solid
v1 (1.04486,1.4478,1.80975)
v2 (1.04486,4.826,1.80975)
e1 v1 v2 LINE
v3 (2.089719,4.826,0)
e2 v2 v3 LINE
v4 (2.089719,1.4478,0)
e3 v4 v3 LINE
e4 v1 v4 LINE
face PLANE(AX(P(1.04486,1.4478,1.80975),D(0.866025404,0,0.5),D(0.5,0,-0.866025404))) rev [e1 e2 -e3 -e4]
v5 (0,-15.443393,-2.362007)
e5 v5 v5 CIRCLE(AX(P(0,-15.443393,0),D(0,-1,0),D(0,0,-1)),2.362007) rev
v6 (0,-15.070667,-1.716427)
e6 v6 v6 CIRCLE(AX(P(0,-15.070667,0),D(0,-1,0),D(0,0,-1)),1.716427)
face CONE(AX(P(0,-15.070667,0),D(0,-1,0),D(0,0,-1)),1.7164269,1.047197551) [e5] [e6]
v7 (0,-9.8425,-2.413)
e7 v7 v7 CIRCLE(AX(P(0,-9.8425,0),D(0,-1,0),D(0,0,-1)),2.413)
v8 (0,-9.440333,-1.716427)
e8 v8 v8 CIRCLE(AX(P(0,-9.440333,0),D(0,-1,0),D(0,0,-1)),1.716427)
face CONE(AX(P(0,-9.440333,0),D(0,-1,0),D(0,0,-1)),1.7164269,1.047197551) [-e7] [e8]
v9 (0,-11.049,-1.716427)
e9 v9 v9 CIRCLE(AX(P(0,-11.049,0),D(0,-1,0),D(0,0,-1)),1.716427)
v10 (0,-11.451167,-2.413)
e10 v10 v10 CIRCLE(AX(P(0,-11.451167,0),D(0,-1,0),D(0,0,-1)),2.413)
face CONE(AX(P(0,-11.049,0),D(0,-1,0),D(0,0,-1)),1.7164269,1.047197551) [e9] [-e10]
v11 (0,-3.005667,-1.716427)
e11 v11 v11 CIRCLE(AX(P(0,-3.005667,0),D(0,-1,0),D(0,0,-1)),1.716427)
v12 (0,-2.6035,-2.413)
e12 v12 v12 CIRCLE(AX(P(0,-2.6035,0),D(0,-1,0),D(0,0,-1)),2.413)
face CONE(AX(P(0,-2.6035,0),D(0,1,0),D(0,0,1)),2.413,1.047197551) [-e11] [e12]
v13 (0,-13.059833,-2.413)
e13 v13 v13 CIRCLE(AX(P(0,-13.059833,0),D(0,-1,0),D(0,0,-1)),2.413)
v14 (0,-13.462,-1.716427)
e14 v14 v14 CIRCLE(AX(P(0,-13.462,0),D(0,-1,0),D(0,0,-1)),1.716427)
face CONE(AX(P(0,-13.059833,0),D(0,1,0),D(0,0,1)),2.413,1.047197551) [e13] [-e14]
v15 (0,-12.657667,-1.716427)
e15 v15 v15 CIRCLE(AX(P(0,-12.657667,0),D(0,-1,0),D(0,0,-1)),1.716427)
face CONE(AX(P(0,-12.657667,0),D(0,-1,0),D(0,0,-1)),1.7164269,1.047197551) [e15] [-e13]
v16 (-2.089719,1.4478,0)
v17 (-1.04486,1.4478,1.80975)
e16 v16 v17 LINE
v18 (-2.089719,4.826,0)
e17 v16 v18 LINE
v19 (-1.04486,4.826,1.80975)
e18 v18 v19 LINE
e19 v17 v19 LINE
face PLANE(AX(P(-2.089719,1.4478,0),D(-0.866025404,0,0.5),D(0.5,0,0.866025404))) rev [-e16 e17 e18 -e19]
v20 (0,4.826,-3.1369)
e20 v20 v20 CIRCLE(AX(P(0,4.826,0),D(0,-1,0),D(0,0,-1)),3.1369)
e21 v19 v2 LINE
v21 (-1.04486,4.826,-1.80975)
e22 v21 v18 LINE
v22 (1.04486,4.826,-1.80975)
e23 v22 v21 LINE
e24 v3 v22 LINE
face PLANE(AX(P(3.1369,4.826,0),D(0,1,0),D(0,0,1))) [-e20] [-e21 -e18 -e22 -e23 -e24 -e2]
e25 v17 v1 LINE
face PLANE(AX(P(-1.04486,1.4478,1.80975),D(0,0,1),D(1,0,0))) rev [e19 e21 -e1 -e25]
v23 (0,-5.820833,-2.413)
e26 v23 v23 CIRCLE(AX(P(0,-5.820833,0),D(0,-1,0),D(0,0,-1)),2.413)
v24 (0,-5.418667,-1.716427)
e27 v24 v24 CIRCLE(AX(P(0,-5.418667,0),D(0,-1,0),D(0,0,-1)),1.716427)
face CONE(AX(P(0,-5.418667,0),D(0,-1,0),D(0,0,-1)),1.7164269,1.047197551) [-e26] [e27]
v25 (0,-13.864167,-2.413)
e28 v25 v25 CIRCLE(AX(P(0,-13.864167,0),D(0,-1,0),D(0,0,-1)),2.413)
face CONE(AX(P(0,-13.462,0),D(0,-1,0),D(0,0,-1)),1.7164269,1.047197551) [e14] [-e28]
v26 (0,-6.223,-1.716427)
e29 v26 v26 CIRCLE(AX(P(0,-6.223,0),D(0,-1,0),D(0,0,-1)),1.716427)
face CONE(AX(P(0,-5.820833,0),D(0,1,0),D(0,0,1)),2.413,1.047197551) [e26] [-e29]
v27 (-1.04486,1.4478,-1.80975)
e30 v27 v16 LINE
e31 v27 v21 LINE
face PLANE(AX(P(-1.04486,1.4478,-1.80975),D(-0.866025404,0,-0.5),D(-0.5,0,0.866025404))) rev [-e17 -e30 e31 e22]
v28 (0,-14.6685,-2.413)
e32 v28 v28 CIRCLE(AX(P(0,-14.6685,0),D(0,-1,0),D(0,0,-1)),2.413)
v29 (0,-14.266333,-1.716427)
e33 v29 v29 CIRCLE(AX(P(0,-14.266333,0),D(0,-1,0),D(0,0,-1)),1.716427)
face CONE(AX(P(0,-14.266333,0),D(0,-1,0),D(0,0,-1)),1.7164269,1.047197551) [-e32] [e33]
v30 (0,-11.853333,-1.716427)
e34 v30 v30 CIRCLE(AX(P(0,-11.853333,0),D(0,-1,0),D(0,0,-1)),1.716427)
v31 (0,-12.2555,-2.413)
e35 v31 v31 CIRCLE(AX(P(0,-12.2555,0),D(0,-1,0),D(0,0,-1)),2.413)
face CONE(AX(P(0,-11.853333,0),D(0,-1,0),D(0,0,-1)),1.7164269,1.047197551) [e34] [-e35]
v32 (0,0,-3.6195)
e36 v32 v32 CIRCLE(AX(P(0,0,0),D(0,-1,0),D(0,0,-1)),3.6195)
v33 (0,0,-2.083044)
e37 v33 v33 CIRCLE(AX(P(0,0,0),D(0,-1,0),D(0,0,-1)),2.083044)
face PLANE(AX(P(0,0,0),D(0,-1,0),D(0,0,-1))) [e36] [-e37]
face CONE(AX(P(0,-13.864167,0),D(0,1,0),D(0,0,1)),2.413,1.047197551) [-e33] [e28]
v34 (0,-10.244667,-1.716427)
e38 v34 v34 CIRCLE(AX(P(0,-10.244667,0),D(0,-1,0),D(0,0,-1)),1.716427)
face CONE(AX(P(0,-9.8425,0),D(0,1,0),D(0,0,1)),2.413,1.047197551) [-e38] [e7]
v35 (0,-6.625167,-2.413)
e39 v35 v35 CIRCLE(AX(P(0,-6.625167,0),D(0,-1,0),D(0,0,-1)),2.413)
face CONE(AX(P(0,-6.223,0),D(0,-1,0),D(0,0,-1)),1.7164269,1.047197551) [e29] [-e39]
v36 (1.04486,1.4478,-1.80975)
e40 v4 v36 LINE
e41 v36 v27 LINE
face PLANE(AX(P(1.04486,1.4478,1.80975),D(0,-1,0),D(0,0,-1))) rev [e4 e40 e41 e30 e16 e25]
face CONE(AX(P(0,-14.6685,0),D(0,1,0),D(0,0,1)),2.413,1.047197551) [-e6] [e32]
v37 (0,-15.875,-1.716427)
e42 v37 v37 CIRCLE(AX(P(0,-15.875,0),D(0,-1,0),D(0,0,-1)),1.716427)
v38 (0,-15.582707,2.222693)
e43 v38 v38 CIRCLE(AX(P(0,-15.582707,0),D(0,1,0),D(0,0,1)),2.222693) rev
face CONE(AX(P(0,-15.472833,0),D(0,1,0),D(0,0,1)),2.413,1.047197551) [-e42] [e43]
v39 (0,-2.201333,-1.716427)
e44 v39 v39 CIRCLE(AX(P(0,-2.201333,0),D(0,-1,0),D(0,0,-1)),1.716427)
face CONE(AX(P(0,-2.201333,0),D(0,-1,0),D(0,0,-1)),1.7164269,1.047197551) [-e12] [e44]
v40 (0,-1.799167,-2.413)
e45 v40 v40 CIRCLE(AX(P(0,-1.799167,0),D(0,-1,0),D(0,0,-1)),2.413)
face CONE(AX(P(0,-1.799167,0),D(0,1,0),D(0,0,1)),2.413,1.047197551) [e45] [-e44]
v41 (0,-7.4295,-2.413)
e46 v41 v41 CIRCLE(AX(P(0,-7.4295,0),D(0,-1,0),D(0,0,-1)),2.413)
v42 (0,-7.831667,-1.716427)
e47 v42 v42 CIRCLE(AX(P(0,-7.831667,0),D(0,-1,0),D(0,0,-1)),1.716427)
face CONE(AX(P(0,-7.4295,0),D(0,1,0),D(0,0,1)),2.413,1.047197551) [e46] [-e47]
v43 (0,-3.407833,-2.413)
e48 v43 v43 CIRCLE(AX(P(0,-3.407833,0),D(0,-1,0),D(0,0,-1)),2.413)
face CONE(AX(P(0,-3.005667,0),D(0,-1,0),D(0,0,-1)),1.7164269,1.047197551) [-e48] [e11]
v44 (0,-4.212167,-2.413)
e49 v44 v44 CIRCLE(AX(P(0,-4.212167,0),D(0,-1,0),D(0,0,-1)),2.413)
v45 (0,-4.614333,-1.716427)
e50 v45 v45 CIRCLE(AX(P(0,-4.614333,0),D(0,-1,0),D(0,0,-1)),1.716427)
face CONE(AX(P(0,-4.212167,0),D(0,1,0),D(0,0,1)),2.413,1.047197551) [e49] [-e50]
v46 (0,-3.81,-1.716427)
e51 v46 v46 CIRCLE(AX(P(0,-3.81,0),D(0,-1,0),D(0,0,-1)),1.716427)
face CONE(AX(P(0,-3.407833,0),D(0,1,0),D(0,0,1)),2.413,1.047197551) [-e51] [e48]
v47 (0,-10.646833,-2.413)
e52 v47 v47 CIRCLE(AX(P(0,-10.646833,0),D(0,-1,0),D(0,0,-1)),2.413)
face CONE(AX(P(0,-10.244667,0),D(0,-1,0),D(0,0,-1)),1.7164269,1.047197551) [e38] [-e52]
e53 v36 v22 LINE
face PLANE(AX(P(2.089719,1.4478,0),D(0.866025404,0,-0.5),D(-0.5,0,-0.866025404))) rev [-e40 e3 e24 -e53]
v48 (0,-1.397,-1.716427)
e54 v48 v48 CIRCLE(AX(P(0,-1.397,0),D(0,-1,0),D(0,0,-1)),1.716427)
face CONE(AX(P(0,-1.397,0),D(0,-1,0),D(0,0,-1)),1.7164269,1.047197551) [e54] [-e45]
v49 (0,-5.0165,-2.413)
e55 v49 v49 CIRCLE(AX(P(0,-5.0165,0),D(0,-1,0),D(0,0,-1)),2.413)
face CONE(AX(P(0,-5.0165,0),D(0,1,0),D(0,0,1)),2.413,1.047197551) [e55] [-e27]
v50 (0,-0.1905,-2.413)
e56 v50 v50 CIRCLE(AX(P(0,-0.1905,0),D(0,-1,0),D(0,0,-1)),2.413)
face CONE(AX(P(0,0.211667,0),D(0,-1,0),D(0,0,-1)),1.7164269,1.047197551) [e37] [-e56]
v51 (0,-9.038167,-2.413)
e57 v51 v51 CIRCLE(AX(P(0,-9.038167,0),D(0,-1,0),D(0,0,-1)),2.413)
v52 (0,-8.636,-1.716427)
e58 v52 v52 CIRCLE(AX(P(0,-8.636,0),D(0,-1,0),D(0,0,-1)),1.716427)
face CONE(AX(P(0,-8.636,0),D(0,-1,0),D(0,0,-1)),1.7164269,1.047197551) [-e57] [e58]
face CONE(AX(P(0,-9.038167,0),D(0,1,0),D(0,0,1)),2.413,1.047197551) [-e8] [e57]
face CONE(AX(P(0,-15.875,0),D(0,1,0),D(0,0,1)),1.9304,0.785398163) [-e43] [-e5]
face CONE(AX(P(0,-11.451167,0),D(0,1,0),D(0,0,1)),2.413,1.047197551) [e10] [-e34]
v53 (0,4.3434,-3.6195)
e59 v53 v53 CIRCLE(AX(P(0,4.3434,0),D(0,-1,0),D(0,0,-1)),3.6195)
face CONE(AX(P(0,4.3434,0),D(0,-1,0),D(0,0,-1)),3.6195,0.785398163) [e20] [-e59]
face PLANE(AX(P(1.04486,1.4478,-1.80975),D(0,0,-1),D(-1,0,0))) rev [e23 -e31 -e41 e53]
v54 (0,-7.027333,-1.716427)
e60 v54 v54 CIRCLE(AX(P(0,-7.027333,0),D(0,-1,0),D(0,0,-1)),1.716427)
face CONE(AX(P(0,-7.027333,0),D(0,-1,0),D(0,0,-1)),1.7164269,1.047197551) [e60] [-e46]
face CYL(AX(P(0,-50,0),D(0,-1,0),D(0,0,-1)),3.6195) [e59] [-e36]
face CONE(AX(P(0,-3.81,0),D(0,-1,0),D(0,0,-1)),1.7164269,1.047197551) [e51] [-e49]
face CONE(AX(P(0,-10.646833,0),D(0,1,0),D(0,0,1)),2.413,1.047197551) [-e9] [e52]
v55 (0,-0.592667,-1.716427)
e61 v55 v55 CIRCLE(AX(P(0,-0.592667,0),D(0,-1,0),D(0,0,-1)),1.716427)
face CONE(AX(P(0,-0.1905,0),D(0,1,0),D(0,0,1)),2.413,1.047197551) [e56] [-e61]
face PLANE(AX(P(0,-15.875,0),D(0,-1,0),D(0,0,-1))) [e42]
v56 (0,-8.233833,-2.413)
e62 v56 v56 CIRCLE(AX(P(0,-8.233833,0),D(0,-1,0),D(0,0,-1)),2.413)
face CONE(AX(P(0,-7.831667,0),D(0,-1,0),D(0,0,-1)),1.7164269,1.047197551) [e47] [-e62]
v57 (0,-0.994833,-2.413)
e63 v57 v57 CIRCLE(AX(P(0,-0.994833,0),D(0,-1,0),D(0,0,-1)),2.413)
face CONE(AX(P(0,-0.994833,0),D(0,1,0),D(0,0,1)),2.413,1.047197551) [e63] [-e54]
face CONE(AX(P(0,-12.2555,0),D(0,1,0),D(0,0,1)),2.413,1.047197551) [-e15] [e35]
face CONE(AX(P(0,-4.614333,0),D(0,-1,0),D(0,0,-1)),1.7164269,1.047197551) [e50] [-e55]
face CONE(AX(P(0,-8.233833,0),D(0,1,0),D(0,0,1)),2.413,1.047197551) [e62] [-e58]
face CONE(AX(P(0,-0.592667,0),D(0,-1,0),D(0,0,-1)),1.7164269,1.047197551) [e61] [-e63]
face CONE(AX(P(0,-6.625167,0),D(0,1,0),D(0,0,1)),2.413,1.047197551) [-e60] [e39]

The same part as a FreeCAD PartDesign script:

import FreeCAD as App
import Part
import Sketcher
from FreeCAD import Vector
Q = App.Units.Quantity

doc = App.newDocument("Part")
params = doc.addObject("Spreadsheet::Sheet", "Params")
for row, (alias, value) in enumerate([
    ("sketch1_width", "0.076 in"),
    ("sketch1_width2", "0.095 in"),
    ("sketch1_height", "0.682 in"),
    ("revolution_angle", "360 deg"),
    ("sketch2_height", "0.855 in"),
    ("groove_angle", "360 deg"),
    ("sketch3_height", "0.19 in"),
    ("sketch3_height2", "0.171 in"),
    ("revolution2_angle", "360 deg"),
    ("pocket1_length", "0.133 in"),
], start=1):
    params.set(f"A{row}", alias)
    params.set(f"B{row}", "=" + value)
    params.setAlias(f"B{row}", alias)

body = doc.addObject("PartDesign::Body", "Body")

# Sketch on XY plane
sketch1 = doc.addObject("Sketcher::SketchObject", "Sketch")
body.addObject(sketch1)
sketch1.AttachmentSupport = (doc.XY_Plane, [""])
sketch1.MapMode = "FlatFace"
sketch1.addGeometry(Part.LineSegment(Vector(0, 1.4, 0), Vector(0, -15.9, 0)), False)
sketch1.addGeometry(Part.LineSegment(Vector(0, -15.9, 0), Vector(1.9, -15.9, 0)), False)
sketch1.addGeometry(Part.LineSegment(Vector(1.9, -15.9, 0), Vector(2.4, -15.4, 0)), False)
sketch1.addGeometry(Part.LineSegment(Vector(2.4, -15.4, 0), Vector(2.4, 1.4, 0)), False)
sketch1.addGeometry(Part.LineSegment(Vector(2.4, 1.4, 0), Vector(0, 1.4, 0)), False)
sketch1.addConstraint(Sketcher.Constraint("Coincident", 0, 2, 1, 1))
sketch1.addConstraint(Sketcher.Constraint("Coincident", 1, 2, 2, 1))
sketch1.addConstraint(Sketcher.Constraint("Coincident", 2, 2, 3, 1))
sketch1.addConstraint(Sketcher.Constraint("Coincident", 3, 2, 4, 1))
sketch1.addConstraint(Sketcher.Constraint("Coincident", 4, 2, 0, 1))
sketch1.addConstraint(Sketcher.Constraint("Vertical", 0))
sketch1.addConstraint(Sketcher.Constraint("Horizontal", 1))
sketch1.addConstraint(Sketcher.Constraint("Vertical", 3))
sketch1.addConstraint(Sketcher.Constraint("Horizontal", 4))
sketch1.addConstraint(Sketcher.Constraint("PointOnObject", 0, 2, -2))
sketch1.addConstraint(Sketcher.Constraint("Angle", 2, Q("45 deg")))
sketch1.addConstraint(Sketcher.Constraint("DistanceX", 1, 1, 1, 2, Q("0.076 in")))
sketch1.addConstraint(Sketcher.Constraint("DistanceX", 4, 2, 4, 1, Q("0.095 in")))
sketch1.addConstraint(Sketcher.Constraint("DistanceY", 0, 2, 0, 1, Q("0.682 in")))
sketch1.addConstraint(Sketcher.Constraint("DistanceY", 0, 2, -1, 1, Q("0.625 in")))
sketch1.setExpression("Constraints[11]", "Params.sketch1_width")
sketch1.setExpression("Constraints[12]", "Params.sketch1_width2")
sketch1.setExpression("Constraints[13]", "Params.sketch1_height")
revolution = doc.addObject("PartDesign::Revolution", "Revolution")
body.addObject(revolution)
revolution.Profile = sketch1
revolution.ReferenceAxis = (sketch1, ["V_Axis"])
revolution.setExpression("Angle", "Params.revolution_angle")

# Sketch on XY plane
sketch2 = doc.addObject("Sketcher::SketchObject", "Sketch001")
body.addObject(sketch2)
sketch2.AttachmentSupport = (doc.XY_Plane, [""])
sketch2.MapMode = "FlatFace"
sketch2.addGeometry(Part.LineSegment(Vector(2.4, 3.8, 0), Vector(1.7, 3.4, 0)), False)
sketch2.addGeometry(Part.LineSegment(Vector(1.7, 3.4, 0), Vector(2.4, 3, 0)), False)
sketch2.addGeometry(Part.LineSegment(Vector(2.4, 3, 0), Vector(1.7, 2.6, 0)), False)
sketch2.addGeometry(Part.LineSegment(Vector(1.7, 2.6, 0), Vector(2.4, 2.2, 0)), False)
sketch2.addGeometry(Part.LineSegment(Vector(2.4, 2.2, 0), Vector(1.7, 1.8, 0)), False)
sketch2.addGeometry(Part.LineSegment(Vector(1.7, 1.8, 0), Vector(2.4, 1.4, 0)), False)
sketch2.addGeometry(Part.LineSegment(Vector(2.4, 1.4, 0), Vector(1.7, 1, 0)), False)
sketch2.addGeometry(Part.LineSegment(Vector(1.7, 1, 0), Vector(2.4, 0.6, 0)), False)
sketch2.addGeometry(Part.LineSegment(Vector(2.4, 0.6, 0), Vector(1.7, 0.2, 0)), False)
sketch2.addGeometry(Part.LineSegment(Vector(1.7, 0.2, 0), Vector(2.4, -0.2, 0)), False)
sketch2.addGeometry(Part.LineSegment(Vector(2.4, -0.2, 0), Vector(1.7, -0.6, 0)), False)
sketch2.addGeometry(Part.LineSegment(Vector(1.7, -0.6, 0), Vector(2.4, -1, 0)), False)
sketch2.addGeometry(Part.LineSegment(Vector(2.4, -1, 0), Vector(1.7, -1.4, 0)), False)
sketch2.addGeometry(Part.LineSegment(Vector(1.7, -1.4, 0), Vector(2.4, -1.8, 0)), False)
sketch2.addGeometry(Part.LineSegment(Vector(2.4, -1.8, 0), Vector(1.7, -2.2, 0)), False)
sketch2.addGeometry(Part.LineSegment(Vector(1.7, -2.2, 0), Vector(2.4, -2.6, 0)), False)
sketch2.addGeometry(Part.LineSegment(Vector(2.4, -2.6, 0), Vector(1.7, -3, 0)), False)
sketch2.addGeometry(Part.LineSegment(Vector(1.7, -3, 0), Vector(2.4, -3.4, 0)), False)
sketch2.addGeometry(Part.LineSegment(Vector(2.4, -3.4, 0), Vector(1.7, -3.8, 0)), False)
sketch2.addGeometry(Part.LineSegment(Vector(1.7, -3.8, 0), Vector(2.4, -4.2, 0)), False)
sketch2.addGeometry(Part.LineSegment(Vector(2.4, -4.2, 0), Vector(1.7, -4.6, 0)), False)
sketch2.addGeometry(Part.LineSegment(Vector(1.7, -4.6, 0), Vector(2.4, -5, 0)), False)
sketch2.addGeometry(Part.LineSegment(Vector(2.4, -5, 0), Vector(1.7, -5.4, 0)), False)
sketch2.addGeometry(Part.LineSegment(Vector(1.7, -5.4, 0), Vector(2.4, -5.8, 0)), False)
sketch2.addGeometry(Part.LineSegment(Vector(2.4, -5.8, 0), Vector(1.7, -6.2, 0)), False)
sketch2.addGeometry(Part.LineSegment(Vector(1.7, -6.2, 0), Vector(2.4, -6.6, 0)), False)
sketch2.addGeometry(Part.LineSegment(Vector(2.4, -6.6, 0), Vector(1.7, -7, 0)), False)
sketch2.addGeometry(Part.LineSegment(Vector(1.7, -7, 0), Vector(2.4, -7.4, 0)), False)
sketch2.addGeometry(Part.LineSegment(Vector(2.4, -7.4, 0), Vector(1.7, -7.8, 0)), False)
sketch2.addGeometry(Part.LineSegment(Vector(1.7, -7.8, 0), Vector(2.4, -8.2, 0)), False)
sketch2.addGeometry(Part.LineSegment(Vector(2.4, -8.2, 0), Vector(1.7, -8.6, 0)), False)
sketch2.addGeometry(Part.LineSegment(Vector(1.7, -8.6, 0), Vector(2.4, -9, 0)), False)
sketch2.addGeometry(Part.LineSegment(Vector(2.4, -9, 0), Vector(1.7, -9.4, 0)), False)
sketch2.addGeometry(Part.LineSegment(Vector(1.7, -9.4, 0), Vector(2.4, -9.8, 0)), False)
sketch2.addGeometry(Part.LineSegment(Vector(2.4, -9.8, 0), Vector(1.7, -10.2, 0)), False)
sketch2.addGeometry(Part.LineSegment(Vector(1.7, -10.2, 0), Vector(2.4, -10.6, 0)), False)
sketch2.addGeometry(Part.LineSegment(Vector(2.4, -10.6, 0), Vector(1.7, -11, 0)), False)
sketch2.addGeometry(Part.LineSegment(Vector(1.7, -11, 0), Vector(2.4, -11.5, 0)), False)
sketch2.addGeometry(Part.LineSegment(Vector(2.4, -11.5, 0), Vector(1.7, -11.9, 0)), False)
sketch2.addGeometry(Part.LineSegment(Vector(1.7, -11.9, 0), Vector(2.4, -12.3, 0)), False)
sketch2.addGeometry(Part.LineSegment(Vector(2.4, -12.3, 0), Vector(1.7, -12.7, 0)), False)
sketch2.addGeometry(Part.LineSegment(Vector(1.7, -12.7, 0), Vector(2.4, -13.1, 0)), False)
sketch2.addGeometry(Part.LineSegment(Vector(2.4, -13.1, 0), Vector(1.7, -13.5, 0)), False)
sketch2.addGeometry(Part.LineSegment(Vector(1.7, -13.5, 0), Vector(2.4, -13.9, 0)), False)
sketch2.addGeometry(Part.LineSegment(Vector(2.4, -13.9, 0), Vector(1.7, -14.3, 0)), False)
sketch2.addGeometry(Part.LineSegment(Vector(1.7, -14.3, 0), Vector(2.4, -14.7, 0)), False)
sketch2.addGeometry(Part.LineSegment(Vector(2.4, -14.7, 0), Vector(1.7, -15.1, 0)), False)
sketch2.addGeometry(Part.LineSegment(Vector(1.7, -15.1, 0), Vector(2.4, -15.5, 0)), False)
sketch2.addGeometry(Part.LineSegment(Vector(2.4, -15.5, 0), Vector(1.7, -15.9, 0)), False)
sketch2.addGeometry(Part.LineSegment(Vector(1.7, -15.9, 0), Vector(2.4, -16.3, 0)), False)
sketch2.addGeometry(Part.LineSegment(Vector(2.4, -16.3, 0), Vector(1.7, -16.7, 0)), False)
sketch2.addGeometry(Part.LineSegment(Vector(1.7, -16.7, 0), Vector(2.4, -17.1, 0)), False)
sketch2.addGeometry(Part.LineSegment(Vector(2.4, -17.1, 0), Vector(1.7, -17.5, 0)), False)
sketch2.addGeometry(Part.LineSegment(Vector(1.7, -17.5, 0), Vector(2.4, -17.9, 0)), False)
sketch2.addGeometry(Part.LineSegment(Vector(2.4, -17.9, 0), Vector(3.2, -17.9, 0)), False)
sketch2.addGeometry(Part.LineSegment(Vector(3.2, -17.9, 0), Vector(3.2, 3.8, 0)), False)
sketch2.addGeometry(Part.LineSegment(Vector(3.2, 3.8, 0), Vector(2.4, 3.8, 0)), False)
sketch2.addConstraint(Sketcher.Constraint("Coincident", 0, 2, 1, 1))
sketch2.addConstraint(Sketcher.Constraint("Coincident", 1, 2, 2, 1))
sketch2.addConstraint(Sketcher.Constraint("Coincident", 2, 2, 3, 1))
sketch2.addConstraint(Sketcher.Constraint("Coincident", 3, 2, 4, 1))
sketch2.addConstraint(Sketcher.Constraint("Coincident", 4, 2, 5, 1))
sketch2.addConstraint(Sketcher.Constraint("Coincident", 5, 2, 6, 1))
sketch2.addConstraint(Sketcher.Constraint("Coincident", 6, 2, 7, 1))
sketch2.addConstraint(Sketcher.Constraint("Coincident", 7, 2, 8, 1))
sketch2.addConstraint(Sketcher.Constraint("Coincident", 8, 2, 9, 1))
sketch2.addConstraint(Sketcher.Constraint("Coincident", 9, 2, 10, 1))
sketch2.addConstraint(Sketcher.Constraint("Coincident", 10, 2, 11, 1))
sketch2.addConstraint(Sketcher.Constraint("Coincident", 11, 2, 12, 1))
sketch2.addConstraint(Sketcher.Constraint("Coincident", 12, 2, 13, 1))
sketch2.addConstraint(Sketcher.Constraint("Coincident", 13, 2, 14, 1))
sketch2.addConstraint(Sketcher.Constraint("Coincident", 14, 2, 15, 1))
sketch2.addConstraint(Sketcher.Constraint("Coincident", 15, 2, 16, 1))
sketch2.addConstraint(Sketcher.Constraint("Coincident", 16, 2, 17, 1))
sketch2.addConstraint(Sketcher.Constraint("Coincident", 17, 2, 18, 1))
sketch2.addConstraint(Sketcher.Constraint("Coincident", 18, 2, 19, 1))
sketch2.addConstraint(Sketcher.Constraint("Coincident", 19, 2, 20, 1))
sketch2.addConstraint(Sketcher.Constraint("Coincident", 20, 2, 21, 1))
sketch2.addConstraint(Sketcher.Constraint("Coincident", 21, 2, 22, 1))
sketch2.addConstraint(Sketcher.Constraint("Coincident", 22, 2, 23, 1))
sketch2.addConstraint(Sketcher.Constraint("Coincident", 23, 2, 24, 1))
sketch2.addConstraint(Sketcher.Constraint("Coincident", 24, 2, 25, 1))
sketch2.addConstraint(Sketcher.Constraint("Coincident", 25, 2, 26, 1))
sketch2.addConstraint(Sketcher.Constraint("Coincident", 26, 2, 27, 1))
sketch2.addConstraint(Sketcher.Constraint("Coincident", 27, 2, 28, 1))
sketch2.addConstraint(Sketcher.Constraint("Coincident", 28, 2, 29, 1))
sketch2.addConstraint(Sketcher.Constraint("Coincident", 29, 2, 30, 1))
sketch2.addConstraint(Sketcher.Constraint("Coincident", 30, 2, 31, 1))
sketch2.addConstraint(Sketcher.Constraint("Coincident", 31, 2, 32, 1))
sketch2.addConstraint(Sketcher.Constraint("Coincident", 32, 2, 33, 1))
sketch2.addConstraint(Sketcher.Constraint("Coincident", 33, 2, 34, 1))
sketch2.addConstraint(Sketcher.Constraint("Coincident", 34, 2, 35, 1))
sketch2.addConstraint(Sketcher.Constraint("Coincident", 35, 2, 36, 1))
sketch2.addConstraint(Sketcher.Constraint("Coincident", 36, 2, 37, 1))
sketch2.addConstraint(Sketcher.Constraint("Coincident", 37, 2, 38, 1))
sketch2.addConstraint(Sketcher.Constraint("Coincident", 38, 2, 39, 1))
sketch2.addConstraint(Sketcher.Constraint("Coincident", 39, 2, 40, 1))
sketch2.addConstraint(Sketcher.Constraint("Coincident", 40, 2, 41, 1))
sketch2.addConstraint(Sketcher.Constraint("Coincident", 41, 2, 42, 1))
sketch2.addConstraint(Sketcher.Constraint("Coincident", 42, 2, 43, 1))
sketch2.addConstraint(Sketcher.Constraint("Coincident", 43, 2, 44, 1))
sketch2.addConstraint(Sketcher.Constraint("Coincident", 44, 2, 45, 1))
sketch2.addConstraint(Sketcher.Constraint("Coincident", 45, 2, 46, 1))
sketch2.addConstraint(Sketcher.Constraint("Coincident", 46, 2, 47, 1))
sketch2.addConstraint(Sketcher.Constraint("Coincident", 47, 2, 48, 1))
sketch2.addConstraint(Sketcher.Constraint("Coincident", 48, 2, 49, 1))
sketch2.addConstraint(Sketcher.Constraint("Coincident", 49, 2, 50, 1))
sketch2.addConstraint(Sketcher.Constraint("Coincident", 50, 2, 51, 1))
sketch2.addConstraint(Sketcher.Constraint("Coincident", 51, 2, 52, 1))
sketch2.addConstraint(Sketcher.Constraint("Coincident", 52, 2, 53, 1))
sketch2.addConstraint(Sketcher.Constraint("Coincident", 53, 2, 54, 1))
sketch2.addConstraint(Sketcher.Constraint("Coincident", 54, 2, 55, 1))
sketch2.addConstraint(Sketcher.Constraint("Coincident", 55, 2, 56, 1))
sketch2.addConstraint(Sketcher.Constraint("Coincident", 56, 2, 0, 1))
sketch2.addConstraint(Sketcher.Constraint("Horizontal", 54))
sketch2.addConstraint(Sketcher.Constraint("Vertical", 55))
sketch2.addConstraint(Sketcher.Constraint("Horizontal", 56))
sketch2.addConstraint(Sketcher.Constraint("Parallel", 0, 2))
sketch2.addConstraint(Sketcher.Constraint("Parallel", 1, 3))
sketch2.addConstraint(Sketcher.Constraint("Parallel", 2, 4))
sketch2.addConstraint(Sketcher.Constraint("Parallel", 3, 5))
sketch2.addConstraint(Sketcher.Constraint("Parallel", 4, 6))
sketch2.addConstraint(Sketcher.Constraint("Parallel", 5, 7))
sketch2.addConstraint(Sketcher.Constraint("Parallel", 6, 8))
sketch2.addConstraint(Sketcher.Constraint("Parallel", 7, 9))
sketch2.addConstraint(Sketcher.Constraint("Parallel", 8, 10))
sketch2.addConstraint(Sketcher.Constraint("Parallel", 9, 11))
sketch2.addConstraint(Sketcher.Constraint("Parallel", 10, 12))
sketch2.addConstraint(Sketcher.Constraint("Parallel", 11, 13))
sketch2.addConstraint(Sketcher.Constraint("Parallel", 12, 14))
sketch2.addConstraint(Sketcher.Constraint("Parallel", 13, 15))
sketch2.addConstraint(Sketcher.Constraint("Parallel", 14, 16))
sketch2.addConstraint(Sketcher.Constraint("Parallel", 15, 17))
sketch2.addConstraint(Sketcher.Constraint("Parallel", 16, 18))
sketch2.addConstraint(Sketcher.Constraint("Parallel", 17, 19))
sketch2.addConstraint(Sketcher.Constraint("Parallel", 18, 20))
sketch2.addConstraint(Sketcher.Constraint("Parallel", 19, 21))
sketch2.addConstraint(Sketcher.Constraint("Parallel", 20, 22))
sketch2.addConstraint(Sketcher.Constraint("Parallel", 21, 23))
sketch2.addConstraint(Sketcher.Constraint("Parallel", 22, 24))
sketch2.addConstraint(Sketcher.Constraint("Parallel", 23, 25))
sketch2.addConstraint(Sketcher.Constraint("Parallel", 24, 26))
sketch2.addConstraint(Sketcher.Constraint("Parallel", 25, 27))
sketch2.addConstraint(Sketcher.Constraint("Parallel", 26, 28))
sketch2.addConstraint(Sketcher.Constraint("Parallel", 27, 29))
sketch2.addConstraint(Sketcher.Constraint("Parallel", 28, 30))
sketch2.addConstraint(Sketcher.Constraint("Parallel", 29, 31))
sketch2.addConstraint(Sketcher.Constraint("Parallel", 30, 32))
sketch2.addConstraint(Sketcher.Constraint("Parallel", 31, 33))
sketch2.addConstraint(Sketcher.Constraint("Parallel", 32, 34))
sketch2.addConstraint(Sketcher.Constraint("Parallel", 33, 35))
sketch2.addConstraint(Sketcher.Constraint("Parallel", 34, 36))
sketch2.addConstraint(Sketcher.Constraint("Parallel", 35, 37))
sketch2.addConstraint(Sketcher.Constraint("Parallel", 36, 38))
sketch2.addConstraint(Sketcher.Constraint("Parallel", 37, 39))
sketch2.addConstraint(Sketcher.Constraint("Parallel", 38, 40))
sketch2.addConstraint(Sketcher.Constraint("Parallel", 39, 41))
sketch2.addConstraint(Sketcher.Constraint("Parallel", 40, 42))
sketch2.addConstraint(Sketcher.Constraint("Parallel", 41, 43))
sketch2.addConstraint(Sketcher.Constraint("Parallel", 42, 44))
sketch2.addConstraint(Sketcher.Constraint("Parallel", 43, 45))
sketch2.addConstraint(Sketcher.Constraint("Parallel", 44, 46))
sketch2.addConstraint(Sketcher.Constraint("Parallel", 45, 47))
sketch2.addConstraint(Sketcher.Constraint("Parallel", 46, 48))
sketch2.addConstraint(Sketcher.Constraint("Parallel", 47, 49))
sketch2.addConstraint(Sketcher.Constraint("Parallel", 48, 50))
sketch2.addConstraint(Sketcher.Constraint("Parallel", 49, 51))
sketch2.addConstraint(Sketcher.Constraint("Parallel", 50, 52))
sketch2.addConstraint(Sketcher.Constraint("Parallel", 51, 53))
sketch2.addConstraint(Sketcher.Constraint("Vertical", 0, 2, 2, 2))
sketch2.addConstraint(Sketcher.Constraint("Vertical", 1, 2, 3, 2))
sketch2.addConstraint(Sketcher.Constraint("Vertical", 2, 2, 4, 2))
sketch2.addConstraint(Sketcher.Constraint("Vertical", 3, 2, 5, 2))
sketch2.addConstraint(Sketcher.Constraint("Vertical", 4, 2, 6, 2))
sketch2.addConstraint(Sketcher.Constraint("Vertical", 5, 2, 7, 2))
sketch2.addConstraint(Sketcher.Constraint("Vertical", 6, 2, 8, 2))
sketch2.addConstraint(Sketcher.Constraint("Vertical", 7, 2, 9, 2))
sketch2.addConstraint(Sketcher.Constraint("Vertical", 8, 2, 10, 2))
sketch2.addConstraint(Sketcher.Constraint("Vertical", 9, 2, 11, 2))
sketch2.addConstraint(Sketcher.Constraint("Vertical", 10, 2, 12, 2))
sketch2.addConstraint(Sketcher.Constraint("Vertical", 11, 2, 13, 2))
sketch2.addConstraint(Sketcher.Constraint("Vertical", 12, 2, 14, 2))
sketch2.addConstraint(Sketcher.Constraint("Vertical", 13, 2, 15, 2))
sketch2.addConstraint(Sketcher.Constraint("Vertical", 14, 2, 16, 2))
sketch2.addConstraint(Sketcher.Constraint("Vertical", 15, 2, 17, 2))
sketch2.addConstraint(Sketcher.Constraint("Vertical", 16, 2, 18, 2))
sketch2.addConstraint(Sketcher.Constraint("Vertical", 17, 2, 19, 2))
sketch2.addConstraint(Sketcher.Constraint("Vertical", 18, 2, 20, 2))
sketch2.addConstraint(Sketcher.Constraint("Vertical", 19, 2, 21, 2))
sketch2.addConstraint(Sketcher.Constraint("Vertical", 20, 2, 22, 2))
sketch2.addConstraint(Sketcher.Constraint("Vertical", 21, 2, 23, 2))
sketch2.addConstraint(Sketcher.Constraint("Vertical", 22, 2, 24, 2))
sketch2.addConstraint(Sketcher.Constraint("Vertical", 23, 2, 25, 2))
sketch2.addConstraint(Sketcher.Constraint("Vertical", 24, 2, 26, 2))
sketch2.addConstraint(Sketcher.Constraint("Vertical", 25, 2, 27, 2))
sketch2.addConstraint(Sketcher.Constraint("Vertical", 26, 2, 28, 2))
sketch2.addConstraint(Sketcher.Constraint("Vertical", 27, 2, 29, 2))
sketch2.addConstraint(Sketcher.Constraint("Vertical", 28, 2, 30, 2))
sketch2.addConstraint(Sketcher.Constraint("Vertical", 29, 2, 31, 2))
sketch2.addConstraint(Sketcher.Constraint("Vertical", 30, 2, 32, 2))
sketch2.addConstraint(Sketcher.Constraint("Vertical", 31, 2, 33, 2))
sketch2.addConstraint(Sketcher.Constraint("Vertical", 32, 2, 34, 2))
sketch2.addConstraint(Sketcher.Constraint("Vertical", 33, 2, 35, 2))
sketch2.addConstraint(Sketcher.Constraint("Vertical", 34, 2, 36, 2))
sketch2.addConstraint(Sketcher.Constraint("Vertical", 35, 2, 37, 2))
sketch2.addConstraint(Sketcher.Constraint("Vertical", 36, 2, 38, 2))
sketch2.addConstraint(Sketcher.Constraint("Vertical", 37, 2, 39, 2))
sketch2.addConstraint(Sketcher.Constraint("Vertical", 38, 2, 40, 2))
sketch2.addConstraint(Sketcher.Constraint("Vertical", 39, 2, 41, 2))
sketch2.addConstraint(Sketcher.Constraint("Vertical", 40, 2, 42, 2))
sketch2.addConstraint(Sketcher.Constraint("Vertical", 41, 2, 43, 2))
sketch2.addConstraint(Sketcher.Constraint("Vertical", 42, 2, 44, 2))
sketch2.addConstraint(Sketcher.Constraint("Vertical", 43, 2, 45, 2))
sketch2.addConstraint(Sketcher.Constraint("Vertical", 44, 2, 46, 2))
sketch2.addConstraint(Sketcher.Constraint("Vertical", 45, 2, 47, 2))
sketch2.addConstraint(Sketcher.Constraint("Vertical", 46, 2, 48, 2))
sketch2.addConstraint(Sketcher.Constraint("Vertical", 47, 2, 49, 2))
sketch2.addConstraint(Sketcher.Constraint("Vertical", 48, 2, 50, 2))
sketch2.addConstraint(Sketcher.Constraint("Vertical", 49, 2, 51, 2))
sketch2.addConstraint(Sketcher.Constraint("Vertical", 50, 2, 52, 2))
sketch2.addConstraint(Sketcher.Constraint("Vertical", 51, 2, 53, 2))
sketch2.addConstraint(Sketcher.Constraint("Vertical", 53, 2, 56, 2))
sketch2.addConstraint(Sketcher.Constraint("Equal", 0, 1))
sketch2.addConstraint(Sketcher.Constraint("Angle", 0, Q("-150 deg")))
sketch2.addConstraint(Sketcher.Constraint("DistanceY", 55, 1, 55, 2, Q("0.855 in")))
sketch2.addConstraint(Sketcher.Constraint("DistanceY", -1, 1, 6, 2, Q("0.04 in")))
sketch2.addConstraint(Sketcher.Constraint("DistanceX", -1, 1, 1, 2, Q("0.095 in")))
sketch2.addConstraint(Sketcher.Constraint("DistanceX", 54, 1, 54, 2, 0.804333))
sketch2.setExpression("Constraints[167]", "Params.sketch2_height")
groove = doc.addObject("PartDesign::Groove", "Groove")
body.addObject(groove)
groove.Profile = sketch2
groove.ReferenceAxis = (sketch2, ["V_Axis"])
groove.setExpression("Angle", "Params.groove_angle")

# Sketch on XY plane
sketch3 = doc.addObject("Sketcher::SketchObject", "Sketch002")
body.addObject(sketch3)
sketch3.AttachmentSupport = (doc.XY_Plane, [""])
sketch3.MapMode = "FlatFace"
sketch3.addGeometry(Part.LineSegment(Vector(0, 4.8, 0), Vector(0, 0, 0)), False)
sketch3.addGeometry(Part.LineSegment(Vector(0, 0, 0), Vector(3.6, 0, 0)), False)
sketch3.addGeometry(Part.LineSegment(Vector(3.6, 0, 0), Vector(3.6, 4.3, 0)), False)
sketch3.addGeometry(Part.LineSegment(Vector(3.6, 4.3, 0), Vector(3.1, 4.8, 0)), False)
sketch3.addGeometry(Part.LineSegment(Vector(3.1, 4.8, 0), Vector(0, 4.8, 0)), False)
sketch3.addConstraint(Sketcher.Constraint("Coincident", 0, 2, 1, 1))
sketch3.addConstraint(Sketcher.Constraint("Coincident", 1, 2, 2, 1))
sketch3.addConstraint(Sketcher.Constraint("Coincident", 2, 2, 3, 1))
sketch3.addConstraint(Sketcher.Constraint("Coincident", 3, 2, 4, 1))
sketch3.addConstraint(Sketcher.Constraint("Coincident", 4, 2, 0, 1))
sketch3.addConstraint(Sketcher.Constraint("Vertical", 0))
sketch3.addConstraint(Sketcher.Constraint("Horizontal", 1))
sketch3.addConstraint(Sketcher.Constraint("Vertical", 2))
sketch3.addConstraint(Sketcher.Constraint("Horizontal", 4))
sketch3.addConstraint(Sketcher.Constraint("Coincident", 0, 2, -1, 1))
sketch3.addConstraint(Sketcher.Constraint("Angle", 3, Q("135 deg")))
sketch3.addConstraint(Sketcher.Constraint("DistanceY", 0, 2, 0, 1, Q("0.19 in")))
sketch3.addConstraint(Sketcher.Constraint("DistanceY", 2, 1, 2, 2, Q("0.171 in")))
sketch3.addConstraint(Sketcher.Constraint("DistanceX", 1, 1, 1, 2, Q("0.1425 in")))
sketch3.setExpression("Constraints[11]", "Params.sketch3_height")
sketch3.setExpression("Constraints[12]", "Params.sketch3_height2")
revolution2 = doc.addObject("PartDesign::Revolution", "Revolution001")
body.addObject(revolution2)
revolution2.Profile = sketch3
revolution2.ReferenceAxis = (sketch3, ["V_Axis"])
revolution2.setExpression("Angle", "Params.revolution2_angle")

# Sketch on XZ plane
sketch4 = doc.addObject("Sketcher::SketchObject", "Sketch003")
body.addObject(sketch4)
sketch4.AttachmentSupport = (doc.XZ_Plane, [""])
sketch4.MapMode = "FlatFace"
sketch4.AttachmentOffset = App.Placement(Vector(0, 0, -0.19 * 25.4), App.Rotation())
sketch4.addGeometry(Part.LineSegment(Vector(2.1, 0, 0), Vector(1, -1.8, 0)), False)
sketch4.addGeometry(Part.LineSegment(Vector(1, -1.8, 0), Vector(-1, -1.8, 0)), False)
sketch4.addGeometry(Part.LineSegment(Vector(-1, -1.8, 0), Vector(-2.1, 0, 0)), False)
sketch4.addGeometry(Part.LineSegment(Vector(-2.1, 0, 0), Vector(-1, 1.8, 0)), False)
sketch4.addGeometry(Part.LineSegment(Vector(-1, 1.8, 0), Vector(1, 1.8, 0)), False)
sketch4.addGeometry(Part.LineSegment(Vector(1, 1.8, 0), Vector(2.1, 0, 0)), False)
sketch4.addConstraint(Sketcher.Constraint("Coincident", 0, 2, 1, 1))
sketch4.addConstraint(Sketcher.Constraint("Coincident", 1, 2, 2, 1))
sketch4.addConstraint(Sketcher.Constraint("Coincident", 2, 2, 3, 1))
sketch4.addConstraint(Sketcher.Constraint("Coincident", 3, 2, 4, 1))
sketch4.addConstraint(Sketcher.Constraint("Coincident", 4, 2, 5, 1))
sketch4.addConstraint(Sketcher.Constraint("Coincident", 5, 2, 0, 1))
sketch4.addConstraint(Sketcher.Constraint("Horizontal", 1))
sketch4.addConstraint(Sketcher.Constraint("Horizontal", 4))
sketch4.addConstraint(Sketcher.Constraint("Symmetric", 0, 2, 3, 2, -1, 1))
sketch4.addConstraint(Sketcher.Constraint("Symmetric", 2, 2, 5, 2, -1, 1))
sketch4.addConstraint(Sketcher.Constraint("PointOnObject", 2, 2, -1))
sketch4.addConstraint(Sketcher.Constraint("Parallel", 2, 5))
sketch4.addConstraint(Sketcher.Constraint("Vertical", 1, 2, 3, 2))
sketch4.addConstraint(Sketcher.Constraint("Angle", 0, Q("-120 deg")))
sketch4.addConstraint(Sketcher.Constraint("DistanceY", 1, 2, 3, 2, Q("0.1425 in")))
sketch4.addConstraint(Sketcher.Constraint("DistanceX", 1, 2, 1, 1, 2.089719))
pocket1 = doc.addObject("PartDesign::Pocket", "Pocket")
body.addObject(pocket1)
pocket1.Profile = sketch4
pocket1.setExpression("Length", "Params.pocket1_length")
pocket1.Reversed = True

doc.recompute()
